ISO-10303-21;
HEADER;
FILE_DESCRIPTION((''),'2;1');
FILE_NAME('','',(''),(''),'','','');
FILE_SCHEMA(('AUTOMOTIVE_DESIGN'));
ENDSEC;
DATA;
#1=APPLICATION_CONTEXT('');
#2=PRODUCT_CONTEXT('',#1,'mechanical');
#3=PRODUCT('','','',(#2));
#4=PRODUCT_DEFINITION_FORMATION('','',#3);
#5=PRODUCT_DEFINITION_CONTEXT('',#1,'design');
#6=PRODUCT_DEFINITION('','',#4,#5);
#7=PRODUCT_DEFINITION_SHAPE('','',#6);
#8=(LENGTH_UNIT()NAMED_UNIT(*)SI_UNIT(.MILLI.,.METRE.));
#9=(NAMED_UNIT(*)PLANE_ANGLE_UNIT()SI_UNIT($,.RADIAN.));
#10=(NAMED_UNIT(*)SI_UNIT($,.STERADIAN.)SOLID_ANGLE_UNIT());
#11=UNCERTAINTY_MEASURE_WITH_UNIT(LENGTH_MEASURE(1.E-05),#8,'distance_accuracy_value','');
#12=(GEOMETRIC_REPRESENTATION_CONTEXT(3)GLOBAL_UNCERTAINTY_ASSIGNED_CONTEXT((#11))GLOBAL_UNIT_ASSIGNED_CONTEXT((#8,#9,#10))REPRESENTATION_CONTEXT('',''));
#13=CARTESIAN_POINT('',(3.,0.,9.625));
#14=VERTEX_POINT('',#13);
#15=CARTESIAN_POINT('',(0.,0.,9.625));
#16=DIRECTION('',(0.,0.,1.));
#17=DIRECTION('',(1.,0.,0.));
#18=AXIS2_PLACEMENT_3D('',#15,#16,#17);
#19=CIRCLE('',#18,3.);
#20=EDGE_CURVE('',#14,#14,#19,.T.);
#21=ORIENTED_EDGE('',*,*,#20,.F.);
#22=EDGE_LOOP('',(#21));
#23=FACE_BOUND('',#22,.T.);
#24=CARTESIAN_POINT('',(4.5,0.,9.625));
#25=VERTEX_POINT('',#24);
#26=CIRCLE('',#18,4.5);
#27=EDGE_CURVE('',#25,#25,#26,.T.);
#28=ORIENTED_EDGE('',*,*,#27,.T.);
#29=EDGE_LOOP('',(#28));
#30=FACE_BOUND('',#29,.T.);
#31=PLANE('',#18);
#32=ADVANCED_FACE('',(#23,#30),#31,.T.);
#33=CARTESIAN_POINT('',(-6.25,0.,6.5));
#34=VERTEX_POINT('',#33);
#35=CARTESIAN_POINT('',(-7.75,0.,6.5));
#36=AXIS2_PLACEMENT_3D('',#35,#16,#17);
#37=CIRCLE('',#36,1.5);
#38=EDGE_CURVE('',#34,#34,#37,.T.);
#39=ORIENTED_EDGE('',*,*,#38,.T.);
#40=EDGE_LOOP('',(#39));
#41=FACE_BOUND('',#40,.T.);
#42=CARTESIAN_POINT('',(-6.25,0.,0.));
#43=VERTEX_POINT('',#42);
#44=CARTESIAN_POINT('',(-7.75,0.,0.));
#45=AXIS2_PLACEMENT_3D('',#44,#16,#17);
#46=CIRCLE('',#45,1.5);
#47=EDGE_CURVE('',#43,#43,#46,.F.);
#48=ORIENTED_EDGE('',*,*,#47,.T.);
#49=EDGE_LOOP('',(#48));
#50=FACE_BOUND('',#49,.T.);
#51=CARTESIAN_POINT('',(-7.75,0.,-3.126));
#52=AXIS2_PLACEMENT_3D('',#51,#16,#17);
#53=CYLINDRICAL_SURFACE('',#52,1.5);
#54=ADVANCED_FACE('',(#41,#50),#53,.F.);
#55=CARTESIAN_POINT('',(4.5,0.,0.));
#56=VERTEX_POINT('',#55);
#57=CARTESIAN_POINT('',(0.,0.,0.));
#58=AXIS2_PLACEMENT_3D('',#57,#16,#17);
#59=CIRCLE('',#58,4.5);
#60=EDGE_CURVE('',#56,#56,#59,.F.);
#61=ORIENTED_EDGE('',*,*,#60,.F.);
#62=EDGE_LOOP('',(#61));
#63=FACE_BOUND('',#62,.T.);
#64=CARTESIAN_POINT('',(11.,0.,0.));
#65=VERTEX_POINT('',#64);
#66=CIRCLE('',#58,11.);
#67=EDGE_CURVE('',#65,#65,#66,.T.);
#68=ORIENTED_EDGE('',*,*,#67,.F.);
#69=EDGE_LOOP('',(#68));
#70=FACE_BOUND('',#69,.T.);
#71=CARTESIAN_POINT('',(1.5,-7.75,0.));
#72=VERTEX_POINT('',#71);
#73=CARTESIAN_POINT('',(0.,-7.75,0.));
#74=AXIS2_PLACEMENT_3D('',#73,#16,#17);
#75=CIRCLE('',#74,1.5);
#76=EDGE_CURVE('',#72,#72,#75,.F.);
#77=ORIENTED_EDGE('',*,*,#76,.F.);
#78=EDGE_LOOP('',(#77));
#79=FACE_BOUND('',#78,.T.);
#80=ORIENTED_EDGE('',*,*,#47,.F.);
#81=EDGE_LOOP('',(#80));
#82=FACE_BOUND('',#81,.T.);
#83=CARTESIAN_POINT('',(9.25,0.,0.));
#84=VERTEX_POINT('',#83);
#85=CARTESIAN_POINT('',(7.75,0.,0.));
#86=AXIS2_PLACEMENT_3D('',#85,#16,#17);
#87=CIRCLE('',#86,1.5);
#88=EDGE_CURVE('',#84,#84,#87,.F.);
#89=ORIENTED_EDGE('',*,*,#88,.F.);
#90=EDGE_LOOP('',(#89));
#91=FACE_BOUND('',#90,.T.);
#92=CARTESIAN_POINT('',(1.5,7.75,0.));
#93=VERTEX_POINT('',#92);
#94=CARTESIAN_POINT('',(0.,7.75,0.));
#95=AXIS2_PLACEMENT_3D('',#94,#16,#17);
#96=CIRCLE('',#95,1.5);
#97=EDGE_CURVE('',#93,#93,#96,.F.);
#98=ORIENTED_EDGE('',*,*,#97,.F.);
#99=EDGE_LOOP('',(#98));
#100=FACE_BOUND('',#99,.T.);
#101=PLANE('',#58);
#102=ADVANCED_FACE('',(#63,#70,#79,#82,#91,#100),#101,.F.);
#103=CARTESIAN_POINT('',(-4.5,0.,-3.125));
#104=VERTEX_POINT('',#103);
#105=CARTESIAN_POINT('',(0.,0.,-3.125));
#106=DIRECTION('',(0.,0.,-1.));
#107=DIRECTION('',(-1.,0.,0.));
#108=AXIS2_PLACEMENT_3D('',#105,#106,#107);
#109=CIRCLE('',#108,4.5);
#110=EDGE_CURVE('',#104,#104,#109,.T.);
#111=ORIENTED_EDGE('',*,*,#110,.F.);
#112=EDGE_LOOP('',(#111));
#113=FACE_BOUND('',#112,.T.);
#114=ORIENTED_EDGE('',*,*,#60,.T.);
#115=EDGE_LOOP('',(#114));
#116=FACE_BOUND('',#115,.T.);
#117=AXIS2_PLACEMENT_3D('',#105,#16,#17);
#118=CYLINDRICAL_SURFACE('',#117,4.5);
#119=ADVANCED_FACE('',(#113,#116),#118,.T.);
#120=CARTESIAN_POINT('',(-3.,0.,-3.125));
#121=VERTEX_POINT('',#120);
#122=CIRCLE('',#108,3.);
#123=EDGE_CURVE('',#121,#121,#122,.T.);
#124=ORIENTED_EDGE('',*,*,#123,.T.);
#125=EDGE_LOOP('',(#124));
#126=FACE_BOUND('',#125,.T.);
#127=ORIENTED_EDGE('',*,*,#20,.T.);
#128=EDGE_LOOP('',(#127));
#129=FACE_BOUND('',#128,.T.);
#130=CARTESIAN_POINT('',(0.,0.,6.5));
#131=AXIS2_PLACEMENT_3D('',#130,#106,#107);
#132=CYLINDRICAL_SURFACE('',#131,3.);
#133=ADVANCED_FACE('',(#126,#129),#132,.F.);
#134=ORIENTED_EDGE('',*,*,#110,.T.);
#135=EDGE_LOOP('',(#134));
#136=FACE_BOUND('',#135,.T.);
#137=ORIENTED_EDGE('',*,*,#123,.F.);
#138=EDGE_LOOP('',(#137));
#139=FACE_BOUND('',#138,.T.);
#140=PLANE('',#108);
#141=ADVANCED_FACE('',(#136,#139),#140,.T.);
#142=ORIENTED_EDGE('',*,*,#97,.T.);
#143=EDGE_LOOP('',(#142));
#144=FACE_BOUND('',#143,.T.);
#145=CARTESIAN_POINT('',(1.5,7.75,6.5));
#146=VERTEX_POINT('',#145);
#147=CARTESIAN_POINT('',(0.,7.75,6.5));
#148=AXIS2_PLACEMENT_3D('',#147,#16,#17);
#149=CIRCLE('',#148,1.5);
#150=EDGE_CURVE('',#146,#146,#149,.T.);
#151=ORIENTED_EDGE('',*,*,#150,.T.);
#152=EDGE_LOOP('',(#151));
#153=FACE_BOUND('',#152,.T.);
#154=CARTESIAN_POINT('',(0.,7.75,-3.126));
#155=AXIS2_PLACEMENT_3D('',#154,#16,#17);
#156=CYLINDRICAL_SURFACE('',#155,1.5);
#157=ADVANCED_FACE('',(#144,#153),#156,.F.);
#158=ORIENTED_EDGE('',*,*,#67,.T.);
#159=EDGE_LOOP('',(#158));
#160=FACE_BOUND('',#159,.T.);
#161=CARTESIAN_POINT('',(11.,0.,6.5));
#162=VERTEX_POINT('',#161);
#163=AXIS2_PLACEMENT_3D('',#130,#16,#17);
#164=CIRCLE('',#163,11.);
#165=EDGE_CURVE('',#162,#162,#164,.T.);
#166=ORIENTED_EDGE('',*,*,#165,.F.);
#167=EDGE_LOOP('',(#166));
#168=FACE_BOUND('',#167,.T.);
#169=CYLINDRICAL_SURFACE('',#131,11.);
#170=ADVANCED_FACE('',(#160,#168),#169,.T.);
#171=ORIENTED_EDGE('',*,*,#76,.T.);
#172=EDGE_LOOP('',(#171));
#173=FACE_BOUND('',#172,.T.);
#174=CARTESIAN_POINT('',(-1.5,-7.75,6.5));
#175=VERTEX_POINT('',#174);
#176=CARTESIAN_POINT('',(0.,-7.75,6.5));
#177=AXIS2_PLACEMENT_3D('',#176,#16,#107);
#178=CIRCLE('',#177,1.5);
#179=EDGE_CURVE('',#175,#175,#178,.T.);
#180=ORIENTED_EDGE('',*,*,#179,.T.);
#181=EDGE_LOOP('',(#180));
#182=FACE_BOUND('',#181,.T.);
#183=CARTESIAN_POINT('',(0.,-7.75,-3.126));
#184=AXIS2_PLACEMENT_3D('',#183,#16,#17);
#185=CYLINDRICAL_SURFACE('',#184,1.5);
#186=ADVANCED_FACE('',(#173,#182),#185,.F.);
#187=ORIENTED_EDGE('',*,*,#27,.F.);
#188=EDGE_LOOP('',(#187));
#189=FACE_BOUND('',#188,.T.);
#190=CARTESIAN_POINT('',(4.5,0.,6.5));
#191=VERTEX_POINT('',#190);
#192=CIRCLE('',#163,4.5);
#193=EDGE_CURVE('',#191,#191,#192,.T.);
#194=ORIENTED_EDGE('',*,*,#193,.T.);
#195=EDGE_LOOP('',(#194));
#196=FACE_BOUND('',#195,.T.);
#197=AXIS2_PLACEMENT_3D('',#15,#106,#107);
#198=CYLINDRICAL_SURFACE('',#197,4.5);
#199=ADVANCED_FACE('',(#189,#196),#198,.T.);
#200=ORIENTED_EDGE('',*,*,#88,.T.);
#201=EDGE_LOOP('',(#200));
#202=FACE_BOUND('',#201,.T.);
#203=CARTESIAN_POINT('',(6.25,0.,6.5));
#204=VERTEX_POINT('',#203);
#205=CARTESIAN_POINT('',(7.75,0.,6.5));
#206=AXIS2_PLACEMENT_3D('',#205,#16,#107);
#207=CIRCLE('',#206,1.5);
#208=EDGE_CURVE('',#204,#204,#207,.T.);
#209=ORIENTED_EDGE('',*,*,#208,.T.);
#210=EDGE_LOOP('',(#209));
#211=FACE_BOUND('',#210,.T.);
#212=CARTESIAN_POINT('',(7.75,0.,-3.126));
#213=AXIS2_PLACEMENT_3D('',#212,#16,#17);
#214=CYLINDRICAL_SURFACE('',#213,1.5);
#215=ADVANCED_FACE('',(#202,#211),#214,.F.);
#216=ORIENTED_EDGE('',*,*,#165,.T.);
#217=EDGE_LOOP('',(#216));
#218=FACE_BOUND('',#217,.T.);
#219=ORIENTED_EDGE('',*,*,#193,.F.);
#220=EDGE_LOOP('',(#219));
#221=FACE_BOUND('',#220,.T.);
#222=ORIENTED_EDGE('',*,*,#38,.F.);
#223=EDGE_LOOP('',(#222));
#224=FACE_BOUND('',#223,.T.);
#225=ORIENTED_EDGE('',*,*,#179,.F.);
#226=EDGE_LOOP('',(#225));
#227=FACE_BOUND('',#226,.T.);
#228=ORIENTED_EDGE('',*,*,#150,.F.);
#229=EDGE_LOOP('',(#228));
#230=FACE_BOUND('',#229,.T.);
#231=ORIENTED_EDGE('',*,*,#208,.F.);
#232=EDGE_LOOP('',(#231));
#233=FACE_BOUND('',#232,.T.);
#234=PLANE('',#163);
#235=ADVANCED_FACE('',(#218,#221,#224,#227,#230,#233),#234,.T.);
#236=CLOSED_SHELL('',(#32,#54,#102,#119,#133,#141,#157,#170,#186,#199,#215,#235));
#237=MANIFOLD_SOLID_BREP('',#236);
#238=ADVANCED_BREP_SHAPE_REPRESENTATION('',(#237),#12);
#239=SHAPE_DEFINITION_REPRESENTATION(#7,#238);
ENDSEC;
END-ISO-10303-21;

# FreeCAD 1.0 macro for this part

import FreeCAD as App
import Part
import Sketcher

V = App.Vector

doc = App.newDocument("Part")
body = doc.addObject("PartDesign::Body", "Body")

# Sketch on XY plane
sketch1 = body.newObject("Sketcher::SketchObject", "Sketch")
sketch1.AttachmentSupport = (doc.getObject("XY_Plane"), [""])
sketch1.MapMode = "FlatFace"
sketch1.addGeometry(Part.Circle(V(0, 0, 0), V(0, 0, 1), 11), False)
sketch1.addGeometry(Part.Circle(V(0, 0, 0), V(0, 0, 1), 3), False)
sketch1.addConstraint(Sketcher.Constraint("Coincident", 0, 3, -1, 1))
sketch1.addConstraint(Sketcher.Constraint("Coincident", 1, 3, -1, 1))
sketch1.addConstraint(Sketcher.Constraint("Diameter", 0, 22.0))
sketch1.addConstraint(Sketcher.Constraint("Diameter", 1, 6.0))
pad1 = body.newObject("PartDesign::Pad", "Pad")
pad1.Profile = sketch1
pad1.Length = 6.5

# Sketch on XY plane
sketch2 = body.newObject("Sketcher::SketchObject", "Sketch001")
sketch2.AttachmentSupport = (doc.getObject("XY_Plane"), [""])
sketch2.MapMode = "FlatFace"
sketch2.AttachmentOffset = App.Placement(V(0, 0, 6.5), App.Rotation())
sketch2.addGeometry(Part.Circle(V(0, 0, 0), V(0, 0, 1), 4.5), False)
sketch2.addGeometry(Part.Circle(V(0, 0, 0), V(0, 0, 1), 3), False)
sketch2.addConstraint(Sketcher.Constraint("Coincident", 0, 3, -1, 1))
sketch2.addConstraint(Sketcher.Constraint("Coincident", 1, 3, -1, 1))
sketch2.addConstraint(Sketcher.Constraint("Diameter", 0, 9.0))
sketch2.addConstraint(Sketcher.Constraint("Diameter", 1, 6.0))
pad2 = body.newObject("PartDesign::Pad", "Pad001")
pad2.Profile = sketch2
pad2.Length = 3.125

# Sketch on XY plane
sketch3 = body.newObject("Sketcher::SketchObject", "Sketch002")
sketch3.AttachmentSupport = (doc.getObject("XY_Plane"), [""])
sketch3.MapMode = "FlatFace"
sketch3.addGeometry(Part.Circle(V(0, 0, 0), V(0, 0, 1), 4.5), False)
sketch3.addGeometry(Part.Circle(V(0, 0, 0), V(0, 0, 1), 3), False)
sketch3.addConstraint(Sketcher.Constraint("Coincident", 0, 3, -1, 1))
sketch3.addConstraint(Sketcher.Constraint("Coincident", 1, 3, -1, 1))
sketch3.addConstraint(Sketcher.Constraint("Diameter", 0, 9.0))
sketch3.addConstraint(Sketcher.Constraint("Diameter", 1, 6.0))
pad3 = body.newObject("PartDesign::Pad", "Pad002")
pad3.Profile = sketch3
pad3.Length = 3.125
pad3.Reversed = True

# Sketch on XY plane
sketch4 = body.newObject("Sketcher::SketchObject", "Sketch003")
sketch4.AttachmentSupport = (doc.getObject("XY_Plane"), [""])
sketch4.MapMode = "FlatFace"
sketch4.AttachmentOffset = App.Placement(V(0, 0, 6.5), App.Rotation())
sketch4.addGeometry(Part.Circle(V(0, 7.8, 0), V(0, 0, 1), 1.5), False)
sketch4.addConstraint(Sketcher.Constraint("PointOnObject", 0, 3, -2))
sketch4.addConstraint(Sketcher.Constraint("Diameter", 0, 3.0))
sketch4.addConstraint(Sketcher.Constraint("DistanceY", -1, 1, 0, 3, 7.75))
pocket1 = body.newObject("PartDesign::Pocket", "Pocket")
pocket1.Profile = sketch4
pocket1.Type = "UpToFirst"

# Sketch on XY plane
sketch5 = body.newObject("Sketcher::SketchObject", "Sketch004")
sketch5.AttachmentSupport = (doc.getObject("XY_Plane"), [""])
sketch5.MapMode = "FlatFace"
sketch5.AttachmentOffset = App.Placement(V(0, 0, 6.5), App.Rotation())
sketch5.addGeometry(Part.Circle(V(0, -7.8, 0), V(0, 0, 1), 1.5), False)
sketch5.addConstraint(Sketcher.Constraint("PointOnObject", 0, 3, -2))
sketch5.addConstraint(Sketcher.Constraint("Diameter", 0, 3.0))
sketch5.addConstraint(Sketcher.Constraint("DistanceY", 0, 3, -1, 1, 7.75))
pocket2 = body.newObject("PartDesign::Pocket", "Pocket001")
pocket2.Profile = sketch5
pocket2.Type = "UpToFirst"

# Sketch on XY plane
sketch6 = body.newObject("Sketcher::SketchObject", "Sketch005")
sketch6.AttachmentSupport = (doc.getObject("XY_Plane"), [""])
sketch6.MapMode = "FlatFace"
sketch6.AttachmentOffset = App.Placement(V(0, 0, 6.5), App.Rotation())
sketch6.addGeometry(Part.Circle(V(-7.8, 0, 0), V(0, 0, 1), 1.5), False)
sketch6.addConstraint(Sketcher.Constraint("PointOnObject", 0, 3, -1))
sketch6.addConstraint(Sketcher.Constraint("Diameter", 0, 3.0))
sketch6.addConstraint(Sketcher.Constraint("DistanceX", 0, 3, -1, 1, 7.75))
pocket3 = body.newObject("PartDesign::Pocket", "Pocket002")
pocket3.Profile = sketch6
pocket3.Type = "UpToFirst"

# Sketch on XY plane
sketch7 = body.newObject("Sketcher::SketchObject", "Sketch006")
sketch7.AttachmentSupport = (doc.getObject("XY_Plane"), [""])
sketch7.MapMode = "FlatFace"
sketch7.AttachmentOffset = App.Placement(V(0, 0, 6.5), App.Rotation())
sketch7.addGeometry(Part.Circle(V(7.8, 0, 0), V(0, 0, 1), 1.5), False)
sketch7.addConstraint(Sketcher.Constraint("PointOnObject", 0, 3, -1))
sketch7.addConstraint(Sketcher.Constraint("Diameter", 0, 3.0))
sketch7.addConstraint(Sketcher.Constraint("DistanceX", -1, 1, 0, 3, 7.75))
pocket4 = body.newObject("PartDesign::Pocket", "Pocket003")
pocket4.Profile = sketch7
pocket4.Type = "UpToFirst"

doc.recompute()
